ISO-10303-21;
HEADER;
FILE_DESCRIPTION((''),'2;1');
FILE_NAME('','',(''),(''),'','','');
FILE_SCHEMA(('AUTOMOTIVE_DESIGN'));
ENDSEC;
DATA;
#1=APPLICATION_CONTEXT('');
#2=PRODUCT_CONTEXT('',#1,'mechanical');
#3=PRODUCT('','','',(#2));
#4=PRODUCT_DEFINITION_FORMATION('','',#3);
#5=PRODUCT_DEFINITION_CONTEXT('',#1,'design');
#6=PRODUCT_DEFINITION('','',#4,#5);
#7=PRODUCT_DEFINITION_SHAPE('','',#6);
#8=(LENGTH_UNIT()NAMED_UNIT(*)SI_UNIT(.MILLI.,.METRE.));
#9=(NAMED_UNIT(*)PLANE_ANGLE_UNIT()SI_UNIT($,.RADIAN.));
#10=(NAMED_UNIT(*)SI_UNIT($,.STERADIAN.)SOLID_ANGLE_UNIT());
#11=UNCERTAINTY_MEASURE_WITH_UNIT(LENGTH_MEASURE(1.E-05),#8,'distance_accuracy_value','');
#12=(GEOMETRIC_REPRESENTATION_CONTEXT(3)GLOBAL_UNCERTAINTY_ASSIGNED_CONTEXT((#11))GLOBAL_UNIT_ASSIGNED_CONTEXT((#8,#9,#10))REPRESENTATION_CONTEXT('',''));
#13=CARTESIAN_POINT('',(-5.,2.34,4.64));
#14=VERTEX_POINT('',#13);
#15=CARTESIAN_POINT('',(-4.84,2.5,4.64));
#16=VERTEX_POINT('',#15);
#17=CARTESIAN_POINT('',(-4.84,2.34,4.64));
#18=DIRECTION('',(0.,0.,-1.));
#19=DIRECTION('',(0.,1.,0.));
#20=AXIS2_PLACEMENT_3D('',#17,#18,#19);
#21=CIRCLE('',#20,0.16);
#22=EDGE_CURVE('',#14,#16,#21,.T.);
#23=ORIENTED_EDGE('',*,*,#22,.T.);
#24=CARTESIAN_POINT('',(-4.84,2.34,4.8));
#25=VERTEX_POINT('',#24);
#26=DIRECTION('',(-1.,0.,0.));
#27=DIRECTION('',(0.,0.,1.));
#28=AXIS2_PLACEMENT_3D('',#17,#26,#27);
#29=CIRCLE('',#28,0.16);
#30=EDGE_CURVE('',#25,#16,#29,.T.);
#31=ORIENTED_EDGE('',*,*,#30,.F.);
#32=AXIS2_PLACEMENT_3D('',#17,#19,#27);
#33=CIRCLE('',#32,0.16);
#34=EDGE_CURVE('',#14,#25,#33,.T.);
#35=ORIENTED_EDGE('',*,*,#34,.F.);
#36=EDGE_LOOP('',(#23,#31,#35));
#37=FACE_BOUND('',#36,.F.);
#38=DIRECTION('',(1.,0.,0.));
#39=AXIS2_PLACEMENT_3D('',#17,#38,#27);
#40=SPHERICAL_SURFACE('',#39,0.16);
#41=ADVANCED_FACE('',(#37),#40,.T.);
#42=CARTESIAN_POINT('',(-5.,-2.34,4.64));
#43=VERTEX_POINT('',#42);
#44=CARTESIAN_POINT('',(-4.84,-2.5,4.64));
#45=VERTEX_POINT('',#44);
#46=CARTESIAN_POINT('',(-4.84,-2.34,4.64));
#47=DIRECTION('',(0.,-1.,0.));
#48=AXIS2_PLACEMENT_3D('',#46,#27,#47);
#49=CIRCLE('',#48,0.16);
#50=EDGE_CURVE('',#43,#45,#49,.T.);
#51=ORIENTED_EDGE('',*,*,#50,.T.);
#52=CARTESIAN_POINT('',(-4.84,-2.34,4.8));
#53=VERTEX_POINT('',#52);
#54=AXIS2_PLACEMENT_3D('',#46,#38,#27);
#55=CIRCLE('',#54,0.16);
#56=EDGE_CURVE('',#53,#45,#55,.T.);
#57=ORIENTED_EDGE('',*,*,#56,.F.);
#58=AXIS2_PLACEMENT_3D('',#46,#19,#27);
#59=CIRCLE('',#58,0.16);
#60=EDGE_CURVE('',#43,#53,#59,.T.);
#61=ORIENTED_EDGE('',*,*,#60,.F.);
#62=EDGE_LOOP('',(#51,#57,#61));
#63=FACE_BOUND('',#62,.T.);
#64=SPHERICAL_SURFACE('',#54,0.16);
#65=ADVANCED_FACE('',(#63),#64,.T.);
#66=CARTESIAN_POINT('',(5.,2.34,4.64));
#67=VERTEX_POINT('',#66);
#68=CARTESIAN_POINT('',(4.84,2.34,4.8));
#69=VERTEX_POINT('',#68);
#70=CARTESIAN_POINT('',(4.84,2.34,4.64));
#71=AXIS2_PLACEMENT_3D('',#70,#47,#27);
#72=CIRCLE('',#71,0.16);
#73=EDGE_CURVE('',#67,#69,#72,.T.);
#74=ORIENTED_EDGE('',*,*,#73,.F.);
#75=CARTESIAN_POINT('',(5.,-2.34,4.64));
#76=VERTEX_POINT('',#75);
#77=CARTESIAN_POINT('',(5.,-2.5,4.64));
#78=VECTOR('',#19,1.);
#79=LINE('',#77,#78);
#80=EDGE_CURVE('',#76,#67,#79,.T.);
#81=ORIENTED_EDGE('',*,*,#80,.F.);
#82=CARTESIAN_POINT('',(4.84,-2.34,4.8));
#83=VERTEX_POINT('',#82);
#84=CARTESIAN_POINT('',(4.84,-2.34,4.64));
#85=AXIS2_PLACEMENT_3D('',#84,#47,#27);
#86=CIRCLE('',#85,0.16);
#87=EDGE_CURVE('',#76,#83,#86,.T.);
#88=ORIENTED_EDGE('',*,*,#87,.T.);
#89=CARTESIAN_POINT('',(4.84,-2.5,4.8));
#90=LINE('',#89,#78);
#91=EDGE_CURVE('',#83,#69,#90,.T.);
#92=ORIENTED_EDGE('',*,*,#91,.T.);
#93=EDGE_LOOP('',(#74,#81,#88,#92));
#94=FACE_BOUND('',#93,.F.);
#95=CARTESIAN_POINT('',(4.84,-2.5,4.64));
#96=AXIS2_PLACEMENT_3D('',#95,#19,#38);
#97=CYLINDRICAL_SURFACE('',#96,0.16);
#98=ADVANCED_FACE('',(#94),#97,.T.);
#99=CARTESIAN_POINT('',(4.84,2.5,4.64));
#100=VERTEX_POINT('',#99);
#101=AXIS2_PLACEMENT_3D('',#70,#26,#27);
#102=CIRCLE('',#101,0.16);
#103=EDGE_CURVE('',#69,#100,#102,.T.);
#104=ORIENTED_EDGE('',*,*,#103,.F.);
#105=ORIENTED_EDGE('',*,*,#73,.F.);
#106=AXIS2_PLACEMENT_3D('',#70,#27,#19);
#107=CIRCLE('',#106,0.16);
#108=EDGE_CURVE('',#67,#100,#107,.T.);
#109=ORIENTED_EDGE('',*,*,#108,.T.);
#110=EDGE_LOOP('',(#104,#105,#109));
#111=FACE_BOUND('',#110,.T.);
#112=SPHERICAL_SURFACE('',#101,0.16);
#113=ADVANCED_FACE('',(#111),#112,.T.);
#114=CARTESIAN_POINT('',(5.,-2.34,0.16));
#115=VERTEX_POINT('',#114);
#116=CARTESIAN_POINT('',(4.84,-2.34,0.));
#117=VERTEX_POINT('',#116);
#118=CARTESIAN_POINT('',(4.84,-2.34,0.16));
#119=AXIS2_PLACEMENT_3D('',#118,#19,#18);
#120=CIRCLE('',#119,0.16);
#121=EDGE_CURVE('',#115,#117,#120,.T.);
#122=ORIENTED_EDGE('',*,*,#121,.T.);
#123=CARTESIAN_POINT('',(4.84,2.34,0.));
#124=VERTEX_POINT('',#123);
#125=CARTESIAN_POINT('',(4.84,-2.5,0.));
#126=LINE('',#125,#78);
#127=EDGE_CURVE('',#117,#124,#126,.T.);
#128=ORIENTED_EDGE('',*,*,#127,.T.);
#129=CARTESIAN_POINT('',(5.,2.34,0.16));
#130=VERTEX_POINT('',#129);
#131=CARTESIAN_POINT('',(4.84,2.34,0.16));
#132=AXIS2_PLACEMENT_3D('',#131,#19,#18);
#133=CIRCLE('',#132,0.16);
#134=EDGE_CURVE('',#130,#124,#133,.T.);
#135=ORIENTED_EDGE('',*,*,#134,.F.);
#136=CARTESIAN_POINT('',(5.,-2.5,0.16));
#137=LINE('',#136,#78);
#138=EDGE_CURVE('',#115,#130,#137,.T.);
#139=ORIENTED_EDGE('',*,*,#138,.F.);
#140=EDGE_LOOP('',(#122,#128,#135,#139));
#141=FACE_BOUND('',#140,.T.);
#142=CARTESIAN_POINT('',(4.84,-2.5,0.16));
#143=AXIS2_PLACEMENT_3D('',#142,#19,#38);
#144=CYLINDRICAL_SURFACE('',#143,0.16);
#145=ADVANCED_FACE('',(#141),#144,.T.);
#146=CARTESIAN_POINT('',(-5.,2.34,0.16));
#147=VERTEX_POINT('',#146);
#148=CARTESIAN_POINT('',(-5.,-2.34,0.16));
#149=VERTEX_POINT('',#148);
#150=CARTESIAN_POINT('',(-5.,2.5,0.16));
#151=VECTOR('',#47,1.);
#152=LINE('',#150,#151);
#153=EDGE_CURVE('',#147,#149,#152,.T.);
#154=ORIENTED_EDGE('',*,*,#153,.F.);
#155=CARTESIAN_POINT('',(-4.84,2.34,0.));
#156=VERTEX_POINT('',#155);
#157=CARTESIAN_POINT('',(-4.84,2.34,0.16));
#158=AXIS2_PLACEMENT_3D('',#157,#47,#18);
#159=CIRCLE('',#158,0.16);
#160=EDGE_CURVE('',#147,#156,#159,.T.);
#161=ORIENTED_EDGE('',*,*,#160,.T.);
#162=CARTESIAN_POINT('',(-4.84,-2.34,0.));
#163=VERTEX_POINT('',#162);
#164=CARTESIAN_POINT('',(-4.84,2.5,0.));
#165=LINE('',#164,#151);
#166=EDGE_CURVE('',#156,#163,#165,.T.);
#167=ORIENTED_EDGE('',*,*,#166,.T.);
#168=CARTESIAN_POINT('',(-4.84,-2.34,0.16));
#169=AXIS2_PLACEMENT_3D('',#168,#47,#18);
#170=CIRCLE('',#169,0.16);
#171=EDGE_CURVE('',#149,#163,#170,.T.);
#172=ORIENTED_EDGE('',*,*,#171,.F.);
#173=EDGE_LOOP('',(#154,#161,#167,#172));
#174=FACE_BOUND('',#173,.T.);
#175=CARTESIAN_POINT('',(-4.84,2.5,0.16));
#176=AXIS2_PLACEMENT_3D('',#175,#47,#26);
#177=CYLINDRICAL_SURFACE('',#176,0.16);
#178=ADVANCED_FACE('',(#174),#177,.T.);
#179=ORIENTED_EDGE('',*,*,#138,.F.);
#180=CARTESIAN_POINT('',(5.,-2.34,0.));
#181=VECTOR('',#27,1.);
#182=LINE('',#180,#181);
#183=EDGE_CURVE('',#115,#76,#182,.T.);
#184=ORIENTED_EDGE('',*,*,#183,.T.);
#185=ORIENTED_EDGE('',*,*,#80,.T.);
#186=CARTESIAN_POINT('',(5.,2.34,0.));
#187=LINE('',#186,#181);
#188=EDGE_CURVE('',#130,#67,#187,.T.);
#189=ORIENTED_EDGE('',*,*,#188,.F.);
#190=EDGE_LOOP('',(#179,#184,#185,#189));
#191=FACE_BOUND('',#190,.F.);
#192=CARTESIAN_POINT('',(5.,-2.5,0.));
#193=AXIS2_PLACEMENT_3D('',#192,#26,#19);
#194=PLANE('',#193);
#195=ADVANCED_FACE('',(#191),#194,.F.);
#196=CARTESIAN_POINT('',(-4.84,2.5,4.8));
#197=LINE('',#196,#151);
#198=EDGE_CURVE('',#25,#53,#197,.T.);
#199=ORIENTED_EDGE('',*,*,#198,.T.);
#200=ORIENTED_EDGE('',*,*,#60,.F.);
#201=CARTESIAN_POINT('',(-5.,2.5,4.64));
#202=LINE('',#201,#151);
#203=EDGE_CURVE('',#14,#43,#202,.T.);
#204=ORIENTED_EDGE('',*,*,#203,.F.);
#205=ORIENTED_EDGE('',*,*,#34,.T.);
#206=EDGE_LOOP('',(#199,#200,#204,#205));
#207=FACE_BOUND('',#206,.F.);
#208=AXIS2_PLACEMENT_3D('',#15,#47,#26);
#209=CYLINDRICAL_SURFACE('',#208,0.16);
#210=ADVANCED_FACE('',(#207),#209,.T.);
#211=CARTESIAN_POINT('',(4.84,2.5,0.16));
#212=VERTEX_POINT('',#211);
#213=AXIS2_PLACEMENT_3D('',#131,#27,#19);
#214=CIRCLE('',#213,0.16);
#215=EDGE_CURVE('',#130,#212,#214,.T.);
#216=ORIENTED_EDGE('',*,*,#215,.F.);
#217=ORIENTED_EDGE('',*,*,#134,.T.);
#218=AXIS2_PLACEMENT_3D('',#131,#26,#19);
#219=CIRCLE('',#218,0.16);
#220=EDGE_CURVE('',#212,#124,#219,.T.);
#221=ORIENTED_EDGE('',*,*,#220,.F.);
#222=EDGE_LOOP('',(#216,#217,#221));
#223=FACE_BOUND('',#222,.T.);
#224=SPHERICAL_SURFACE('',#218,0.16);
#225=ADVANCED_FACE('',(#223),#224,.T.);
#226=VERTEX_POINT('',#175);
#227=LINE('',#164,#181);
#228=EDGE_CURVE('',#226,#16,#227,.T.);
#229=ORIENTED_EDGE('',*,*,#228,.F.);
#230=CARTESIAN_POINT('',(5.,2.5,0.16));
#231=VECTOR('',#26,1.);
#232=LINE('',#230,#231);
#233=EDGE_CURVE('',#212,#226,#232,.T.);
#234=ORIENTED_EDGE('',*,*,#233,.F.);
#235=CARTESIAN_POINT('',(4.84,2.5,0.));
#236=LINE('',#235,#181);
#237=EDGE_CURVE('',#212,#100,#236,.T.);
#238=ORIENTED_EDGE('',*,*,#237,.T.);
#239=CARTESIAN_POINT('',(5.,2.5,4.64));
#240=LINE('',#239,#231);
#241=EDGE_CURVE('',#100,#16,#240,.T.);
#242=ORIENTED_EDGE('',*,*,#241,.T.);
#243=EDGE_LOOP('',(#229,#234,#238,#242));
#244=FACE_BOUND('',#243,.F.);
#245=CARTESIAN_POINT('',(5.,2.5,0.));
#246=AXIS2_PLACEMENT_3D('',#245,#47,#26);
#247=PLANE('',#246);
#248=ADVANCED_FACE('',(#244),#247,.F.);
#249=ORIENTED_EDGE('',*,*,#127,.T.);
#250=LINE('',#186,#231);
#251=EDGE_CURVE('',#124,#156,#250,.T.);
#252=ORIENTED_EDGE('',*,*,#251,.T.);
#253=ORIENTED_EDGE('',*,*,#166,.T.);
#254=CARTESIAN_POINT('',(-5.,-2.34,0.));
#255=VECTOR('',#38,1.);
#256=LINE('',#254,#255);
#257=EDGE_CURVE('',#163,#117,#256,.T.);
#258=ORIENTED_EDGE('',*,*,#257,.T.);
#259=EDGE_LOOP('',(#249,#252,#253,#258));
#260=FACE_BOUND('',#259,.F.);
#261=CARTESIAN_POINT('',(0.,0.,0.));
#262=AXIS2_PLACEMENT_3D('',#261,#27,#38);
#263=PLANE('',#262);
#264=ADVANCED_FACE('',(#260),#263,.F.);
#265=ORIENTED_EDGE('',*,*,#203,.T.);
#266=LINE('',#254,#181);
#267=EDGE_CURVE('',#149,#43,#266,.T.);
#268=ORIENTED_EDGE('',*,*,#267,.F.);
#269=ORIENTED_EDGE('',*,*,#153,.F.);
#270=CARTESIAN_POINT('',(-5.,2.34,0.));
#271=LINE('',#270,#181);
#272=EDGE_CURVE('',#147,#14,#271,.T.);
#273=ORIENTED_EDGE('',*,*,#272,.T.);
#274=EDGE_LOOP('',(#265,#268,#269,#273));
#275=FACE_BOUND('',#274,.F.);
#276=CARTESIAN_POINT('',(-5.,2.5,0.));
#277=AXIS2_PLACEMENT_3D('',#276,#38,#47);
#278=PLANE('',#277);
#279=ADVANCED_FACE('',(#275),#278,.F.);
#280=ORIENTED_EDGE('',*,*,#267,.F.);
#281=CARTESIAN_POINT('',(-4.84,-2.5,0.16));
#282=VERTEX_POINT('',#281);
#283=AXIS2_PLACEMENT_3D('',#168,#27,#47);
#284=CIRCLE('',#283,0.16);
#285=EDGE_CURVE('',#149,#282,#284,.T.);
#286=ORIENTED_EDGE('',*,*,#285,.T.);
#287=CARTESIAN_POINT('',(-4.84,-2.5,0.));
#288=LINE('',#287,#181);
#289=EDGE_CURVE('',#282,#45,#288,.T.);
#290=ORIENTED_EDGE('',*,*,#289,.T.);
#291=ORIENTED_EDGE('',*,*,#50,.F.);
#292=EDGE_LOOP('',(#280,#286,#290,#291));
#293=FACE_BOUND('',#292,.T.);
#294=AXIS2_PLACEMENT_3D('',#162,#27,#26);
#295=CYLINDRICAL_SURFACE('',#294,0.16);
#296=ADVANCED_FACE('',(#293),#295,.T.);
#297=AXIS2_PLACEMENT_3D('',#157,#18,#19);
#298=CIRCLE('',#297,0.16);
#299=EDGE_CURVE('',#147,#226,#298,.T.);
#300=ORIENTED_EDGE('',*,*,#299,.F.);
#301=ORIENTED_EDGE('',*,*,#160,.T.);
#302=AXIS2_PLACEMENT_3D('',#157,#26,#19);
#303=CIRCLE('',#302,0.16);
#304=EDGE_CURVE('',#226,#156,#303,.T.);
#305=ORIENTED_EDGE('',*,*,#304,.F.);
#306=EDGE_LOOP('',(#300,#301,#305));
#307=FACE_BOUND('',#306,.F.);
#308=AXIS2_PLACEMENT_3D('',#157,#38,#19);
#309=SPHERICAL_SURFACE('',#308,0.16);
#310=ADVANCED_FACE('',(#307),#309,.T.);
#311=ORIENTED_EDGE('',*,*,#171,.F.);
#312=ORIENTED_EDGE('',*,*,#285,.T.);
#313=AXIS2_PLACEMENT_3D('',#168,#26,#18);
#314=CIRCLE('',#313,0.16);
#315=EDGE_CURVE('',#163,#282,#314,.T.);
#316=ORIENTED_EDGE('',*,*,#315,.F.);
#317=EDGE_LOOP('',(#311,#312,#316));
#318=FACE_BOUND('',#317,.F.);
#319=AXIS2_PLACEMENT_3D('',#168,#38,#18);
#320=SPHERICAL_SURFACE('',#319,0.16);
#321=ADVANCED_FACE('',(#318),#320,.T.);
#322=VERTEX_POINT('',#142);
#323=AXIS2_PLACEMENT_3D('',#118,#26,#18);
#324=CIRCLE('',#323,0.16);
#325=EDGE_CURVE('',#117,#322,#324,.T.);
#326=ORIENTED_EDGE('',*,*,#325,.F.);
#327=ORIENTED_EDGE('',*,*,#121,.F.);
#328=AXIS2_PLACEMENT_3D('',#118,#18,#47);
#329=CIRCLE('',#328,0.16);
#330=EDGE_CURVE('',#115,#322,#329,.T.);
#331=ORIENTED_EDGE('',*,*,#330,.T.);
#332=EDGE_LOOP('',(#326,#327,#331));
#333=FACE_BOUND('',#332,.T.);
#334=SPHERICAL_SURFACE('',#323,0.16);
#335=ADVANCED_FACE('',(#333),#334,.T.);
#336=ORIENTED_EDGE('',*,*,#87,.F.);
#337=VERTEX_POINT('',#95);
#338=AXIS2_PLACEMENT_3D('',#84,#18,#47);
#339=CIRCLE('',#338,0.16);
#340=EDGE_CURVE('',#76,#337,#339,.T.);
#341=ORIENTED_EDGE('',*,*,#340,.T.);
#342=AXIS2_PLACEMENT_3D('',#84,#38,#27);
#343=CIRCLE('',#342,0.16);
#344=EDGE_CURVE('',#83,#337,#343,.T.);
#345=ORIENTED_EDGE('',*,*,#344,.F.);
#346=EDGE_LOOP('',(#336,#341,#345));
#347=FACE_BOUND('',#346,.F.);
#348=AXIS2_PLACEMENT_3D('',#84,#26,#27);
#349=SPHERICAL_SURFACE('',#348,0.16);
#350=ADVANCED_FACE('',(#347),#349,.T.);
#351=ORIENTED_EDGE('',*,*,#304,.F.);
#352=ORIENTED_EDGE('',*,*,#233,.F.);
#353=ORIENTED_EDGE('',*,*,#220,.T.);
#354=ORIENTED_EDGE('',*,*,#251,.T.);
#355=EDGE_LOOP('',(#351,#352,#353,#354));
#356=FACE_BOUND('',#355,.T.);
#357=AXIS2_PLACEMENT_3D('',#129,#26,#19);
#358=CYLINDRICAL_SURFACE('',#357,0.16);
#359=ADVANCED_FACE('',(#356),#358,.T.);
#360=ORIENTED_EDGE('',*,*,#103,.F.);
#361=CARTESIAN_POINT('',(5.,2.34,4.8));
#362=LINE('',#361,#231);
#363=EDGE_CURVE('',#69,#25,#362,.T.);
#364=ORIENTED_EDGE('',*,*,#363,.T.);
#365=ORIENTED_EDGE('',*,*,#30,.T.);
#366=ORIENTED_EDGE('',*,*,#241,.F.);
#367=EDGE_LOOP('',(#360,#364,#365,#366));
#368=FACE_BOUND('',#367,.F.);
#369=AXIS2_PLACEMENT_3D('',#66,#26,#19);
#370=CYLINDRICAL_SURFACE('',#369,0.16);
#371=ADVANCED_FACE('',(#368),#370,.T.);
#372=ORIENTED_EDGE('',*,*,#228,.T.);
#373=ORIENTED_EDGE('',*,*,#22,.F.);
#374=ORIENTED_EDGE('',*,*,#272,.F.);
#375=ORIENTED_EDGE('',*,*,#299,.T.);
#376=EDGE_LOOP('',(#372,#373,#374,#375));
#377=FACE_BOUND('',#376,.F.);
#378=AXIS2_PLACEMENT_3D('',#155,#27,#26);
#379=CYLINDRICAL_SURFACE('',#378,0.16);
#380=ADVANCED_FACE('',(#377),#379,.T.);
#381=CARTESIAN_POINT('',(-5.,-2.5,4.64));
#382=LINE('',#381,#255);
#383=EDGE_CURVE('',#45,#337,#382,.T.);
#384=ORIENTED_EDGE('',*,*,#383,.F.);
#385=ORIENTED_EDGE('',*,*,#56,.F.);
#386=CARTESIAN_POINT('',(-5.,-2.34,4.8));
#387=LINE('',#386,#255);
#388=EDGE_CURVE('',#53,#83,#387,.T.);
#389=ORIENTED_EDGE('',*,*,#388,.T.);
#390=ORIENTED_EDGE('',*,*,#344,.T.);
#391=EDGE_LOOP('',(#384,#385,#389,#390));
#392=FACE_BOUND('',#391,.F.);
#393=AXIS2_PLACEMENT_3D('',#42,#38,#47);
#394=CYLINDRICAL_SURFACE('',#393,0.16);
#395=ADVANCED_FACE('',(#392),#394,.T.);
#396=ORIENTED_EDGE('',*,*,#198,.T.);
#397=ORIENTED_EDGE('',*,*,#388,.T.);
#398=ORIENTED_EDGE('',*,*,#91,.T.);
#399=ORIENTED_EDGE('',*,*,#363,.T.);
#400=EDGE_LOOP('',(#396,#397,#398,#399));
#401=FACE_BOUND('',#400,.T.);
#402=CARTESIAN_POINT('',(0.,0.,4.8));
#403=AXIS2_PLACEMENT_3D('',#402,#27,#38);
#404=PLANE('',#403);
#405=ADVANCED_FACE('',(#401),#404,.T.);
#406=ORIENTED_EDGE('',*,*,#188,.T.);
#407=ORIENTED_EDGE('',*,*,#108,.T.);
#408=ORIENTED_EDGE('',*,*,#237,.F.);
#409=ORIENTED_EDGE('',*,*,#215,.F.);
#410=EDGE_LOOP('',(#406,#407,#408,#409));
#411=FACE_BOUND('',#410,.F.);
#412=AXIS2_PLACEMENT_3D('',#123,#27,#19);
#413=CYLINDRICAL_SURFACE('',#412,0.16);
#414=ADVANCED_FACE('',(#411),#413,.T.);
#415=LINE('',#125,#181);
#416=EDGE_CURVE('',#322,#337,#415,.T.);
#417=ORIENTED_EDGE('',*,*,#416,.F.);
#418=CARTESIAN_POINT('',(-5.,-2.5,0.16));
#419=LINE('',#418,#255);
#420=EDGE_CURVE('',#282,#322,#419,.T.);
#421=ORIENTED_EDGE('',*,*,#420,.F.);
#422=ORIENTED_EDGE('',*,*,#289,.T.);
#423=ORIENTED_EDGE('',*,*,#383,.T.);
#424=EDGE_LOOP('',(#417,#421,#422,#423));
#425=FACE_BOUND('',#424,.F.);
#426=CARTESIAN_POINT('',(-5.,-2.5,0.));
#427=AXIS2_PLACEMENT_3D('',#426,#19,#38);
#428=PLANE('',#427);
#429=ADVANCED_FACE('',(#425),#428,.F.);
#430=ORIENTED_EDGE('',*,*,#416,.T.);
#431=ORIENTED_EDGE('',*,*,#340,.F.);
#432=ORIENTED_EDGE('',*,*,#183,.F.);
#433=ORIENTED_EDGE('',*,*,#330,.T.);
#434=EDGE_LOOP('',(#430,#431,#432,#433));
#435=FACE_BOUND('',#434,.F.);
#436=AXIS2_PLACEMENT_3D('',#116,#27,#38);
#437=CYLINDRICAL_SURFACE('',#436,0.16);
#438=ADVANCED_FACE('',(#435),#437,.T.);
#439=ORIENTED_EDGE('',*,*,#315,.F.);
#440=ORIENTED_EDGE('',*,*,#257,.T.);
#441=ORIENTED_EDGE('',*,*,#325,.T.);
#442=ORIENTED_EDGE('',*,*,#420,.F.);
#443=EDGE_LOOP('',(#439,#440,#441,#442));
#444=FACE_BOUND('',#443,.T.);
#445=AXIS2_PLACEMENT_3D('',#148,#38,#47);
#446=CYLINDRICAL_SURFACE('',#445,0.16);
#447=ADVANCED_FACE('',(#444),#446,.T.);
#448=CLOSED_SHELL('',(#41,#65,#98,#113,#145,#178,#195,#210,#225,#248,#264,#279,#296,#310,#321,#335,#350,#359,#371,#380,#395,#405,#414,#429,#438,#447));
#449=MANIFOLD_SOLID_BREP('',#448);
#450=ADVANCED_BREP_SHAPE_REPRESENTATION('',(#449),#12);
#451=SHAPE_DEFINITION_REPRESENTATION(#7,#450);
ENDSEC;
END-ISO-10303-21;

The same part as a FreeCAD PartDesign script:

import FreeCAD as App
import Part
import Sketcher

V = App.Vector
Q = App.Units.Quantity


def add_polygon(sketch, points):
    """Adds a closed chain of lines whose ends are joined by coincident constraints."""
    first, n = sketch.GeometryCount, len(points)
    for a, b in zip(points, points[1:] + points[:1]):
        sketch.addGeometry(Part.LineSegment(App.Vector(*a, 0), App.Vector(*b, 0)), False)
    for i in range(n):
        sketch.addConstraint(Sketcher.Constraint("Coincident", first + i, 2, first + (i + 1) % n, 1))

doc = App.newDocument("Part")
body = doc.addObject("PartDesign::Body", "Body")

# Sketch on XY plane
sketch1 = doc.addObject("Sketcher::SketchObject", "Sketch")
body.addObject(sketch1)
sketch1.AttachmentSupport = (doc.XY_Plane, [""])
sketch1.MapMode = "FlatFace"
add_polygon(sketch1, [(-5, 2), (-5, -2), (5, -2), (5, 2)])  # lines 0-3
sketch1.addConstraint([
    Sketcher.Constraint("Vertical", 0),
    Sketcher.Constraint("Horizontal", 1),
    Sketcher.Constraint("Vertical", 2),
    Sketcher.Constraint("Horizontal", 3),
    Sketcher.Constraint("Symmetric", 0, 2, 2, 2, -1, 1),
    Sketcher.Constraint("DistanceX", 1, 1, 1, 2, Q("10 mm")),
    Sketcher.Constraint("DistanceY", 0, 2, 0, 1, Q("5 mm")),
])
pad1 = doc.addObject("PartDesign::Pad", "Pad")
body.addObject(pad1)
pad1.Profile = sketch1
pad1.Length = 4.8
doc.recompute()

fillet = doc.addObject("PartDesign::Fillet", "Fillet")
body.addObject(fillet)
fillet.Base = (pad1, ["Edge1"])
fillet.UseAllEdges = True
fillet.Radius = 0.16

doc.recompute()
